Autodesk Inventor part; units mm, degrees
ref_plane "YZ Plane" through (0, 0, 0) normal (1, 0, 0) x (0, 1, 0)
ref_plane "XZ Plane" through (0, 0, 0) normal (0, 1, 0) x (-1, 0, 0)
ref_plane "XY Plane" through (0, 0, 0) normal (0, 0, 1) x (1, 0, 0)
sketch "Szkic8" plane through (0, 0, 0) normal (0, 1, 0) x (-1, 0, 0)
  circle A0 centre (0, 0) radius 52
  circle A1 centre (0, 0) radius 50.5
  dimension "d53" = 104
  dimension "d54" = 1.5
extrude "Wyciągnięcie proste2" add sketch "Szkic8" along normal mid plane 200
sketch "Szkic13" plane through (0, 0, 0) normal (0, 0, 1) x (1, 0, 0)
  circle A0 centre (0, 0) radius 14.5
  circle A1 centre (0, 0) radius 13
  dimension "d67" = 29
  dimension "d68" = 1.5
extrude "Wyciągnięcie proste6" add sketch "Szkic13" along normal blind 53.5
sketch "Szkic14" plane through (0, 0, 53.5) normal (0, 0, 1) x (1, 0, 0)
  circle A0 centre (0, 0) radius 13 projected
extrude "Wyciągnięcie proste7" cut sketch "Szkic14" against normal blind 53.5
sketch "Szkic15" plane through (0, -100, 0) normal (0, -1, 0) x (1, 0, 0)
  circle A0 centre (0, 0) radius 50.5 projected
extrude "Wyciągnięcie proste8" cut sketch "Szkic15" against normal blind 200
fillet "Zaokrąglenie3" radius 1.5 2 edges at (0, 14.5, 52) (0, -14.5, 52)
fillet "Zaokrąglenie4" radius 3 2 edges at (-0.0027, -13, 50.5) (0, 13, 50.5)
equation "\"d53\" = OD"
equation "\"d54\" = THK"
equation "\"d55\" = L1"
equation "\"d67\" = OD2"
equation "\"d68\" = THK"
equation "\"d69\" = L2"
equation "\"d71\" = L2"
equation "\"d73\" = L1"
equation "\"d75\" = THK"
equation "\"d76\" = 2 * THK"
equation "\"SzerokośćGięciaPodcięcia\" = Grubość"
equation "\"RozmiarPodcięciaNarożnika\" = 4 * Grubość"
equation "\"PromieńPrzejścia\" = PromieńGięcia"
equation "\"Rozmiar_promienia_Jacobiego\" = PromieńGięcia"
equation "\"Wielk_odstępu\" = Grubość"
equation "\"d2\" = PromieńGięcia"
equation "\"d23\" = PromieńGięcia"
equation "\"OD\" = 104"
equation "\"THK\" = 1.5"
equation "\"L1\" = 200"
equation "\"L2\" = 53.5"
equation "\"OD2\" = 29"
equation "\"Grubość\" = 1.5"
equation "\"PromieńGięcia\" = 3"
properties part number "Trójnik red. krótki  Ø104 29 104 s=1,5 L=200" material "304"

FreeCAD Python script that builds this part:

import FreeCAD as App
import Part
import Sketcher

V = App.Vector
Q = App.Units.Quantity


def edges_at(feature, points):
    """Names of the edges that pass closest to the given points."""
    edges = feature.Shape.Edges
    near = lambda p: min(range(len(edges)), key=lambda i: edges[i].distToShape(Part.Vertex(*p))[0])
    return sorted({f"Edge{near(p) + 1}" for p in points})

doc = App.newDocument("Part")
body = doc.addObject("PartDesign::Body", "Body")

sketch1 = body.newObject("Sketcher::SketchObject", "Sketch")
sketch1.AttachmentSupport = (doc.getObject("XZ_Plane"), [""])
sketch1.MapMode = "FlatFace"
sketch1.addGeometry([
    Part.Circle(V(0, 0, 0), V(0, 0, 1), 52),
    Part.Circle(V(0, 0, 0), V(0, 0, 1), 50),
], False)
sketch1.addConstraint([
    Sketcher.Constraint("Coincident", 0, 3, -1, 1),
    Sketcher.Constraint("Coincident", 1, 3, -1, 1),
    Sketcher.Constraint("Diameter", 0, Q("104 mm")),
    Sketcher.Constraint("Diameter", 1, Q("101 mm")),
])
pad1 = body.newObject("PartDesign::Pad", "Pad")
pad1.Profile = sketch1
pad1.Length = 200
pad1.Midplane = True

sketch2 = body.newObject("Sketcher::SketchObject", "Sketch001")
sketch2.AttachmentSupport = (doc.getObject("XY_Plane"), [""])
sketch2.MapMode = "FlatFace"
sketch2.addGeometry([
    Part.Circle(V(0, 0, 0), V(0, 0, 1), 14),
    Part.Circle(V(0, 0, 0), V(0, 0, 1), 13),
], False)
sketch2.addConstraint([
    Sketcher.Constraint("Coincident", 0, 3, -1, 1),
    Sketcher.Constraint("Coincident", 1, 3, -1, 1),
    Sketcher.Constraint("Diameter", 0, Q("29 mm")),
    Sketcher.Constraint("Diameter", 1, Q("26 mm")),
])
pad2 = body.newObject("PartDesign::Pad", "Pad001")
pad2.Profile = sketch2
pad2.Length = 53.5

sketch3 = body.newObject("Sketcher::SketchObject", "Sketch002")
sketch3.AttachmentSupport = (doc.getObject("XY_Plane"), [""])
sketch3.MapMode = "FlatFace"
sketch3.AttachmentOffset = App.Placement(V(0, 0, 53.5), App.Rotation())
sketch3.addGeometry(Part.Circle(V(0, 0, 0), V(0, 0, 1), 13), False)
sketch3.addConstraint([
    Sketcher.Constraint("Coincident", 0, 3, -1, 1),
    Sketcher.Constraint("Diameter", 0, Q("26 mm")),
])
pocket1 = body.newObject("PartDesign::Pocket", "Pocket")
pocket1.Profile = sketch3
pocket1.Length = 53.5

sketch4 = body.newObject("Sketcher::SketchObject", "Sketch003")
sketch4.AttachmentSupport = (doc.getObject("XZ_Plane"), [""])
sketch4.MapMode = "FlatFace"
sketch4.AttachmentOffset = App.Placement(V(0, 0, 100), App.Rotation())
sketch4.addGeometry(Part.Circle(V(0, 0, 0), V(0, 0, 1), 50), False)
sketch4.addConstraint([
    Sketcher.Constraint("Coincident", 0, 3, -1, 1),
    Sketcher.Constraint("Diameter", 0, Q("101 mm")),
])
pocket2 = body.newObject("PartDesign::Pocket", "Pocket001")
pocket2.Profile = sketch4
pocket2.Length = 200
doc.recompute()

fillet = body.newObject("PartDesign::Fillet", "Fillet")
fillet.Base = (pocket2, edges_at(pocket2, [(0, 14.5, 52), (0, -14.5, 52)]))
fillet.Radius = 1.5
doc.recompute()

fillet2 = body.newObject("PartDesign::Fillet", "Fillet001")
fillet2.Base = (fillet, edges_at(fillet, [(-0.003, -13, 50.5), (0, 13, 50.5)]))
fillet2.Radius = 3

doc.recompute()
